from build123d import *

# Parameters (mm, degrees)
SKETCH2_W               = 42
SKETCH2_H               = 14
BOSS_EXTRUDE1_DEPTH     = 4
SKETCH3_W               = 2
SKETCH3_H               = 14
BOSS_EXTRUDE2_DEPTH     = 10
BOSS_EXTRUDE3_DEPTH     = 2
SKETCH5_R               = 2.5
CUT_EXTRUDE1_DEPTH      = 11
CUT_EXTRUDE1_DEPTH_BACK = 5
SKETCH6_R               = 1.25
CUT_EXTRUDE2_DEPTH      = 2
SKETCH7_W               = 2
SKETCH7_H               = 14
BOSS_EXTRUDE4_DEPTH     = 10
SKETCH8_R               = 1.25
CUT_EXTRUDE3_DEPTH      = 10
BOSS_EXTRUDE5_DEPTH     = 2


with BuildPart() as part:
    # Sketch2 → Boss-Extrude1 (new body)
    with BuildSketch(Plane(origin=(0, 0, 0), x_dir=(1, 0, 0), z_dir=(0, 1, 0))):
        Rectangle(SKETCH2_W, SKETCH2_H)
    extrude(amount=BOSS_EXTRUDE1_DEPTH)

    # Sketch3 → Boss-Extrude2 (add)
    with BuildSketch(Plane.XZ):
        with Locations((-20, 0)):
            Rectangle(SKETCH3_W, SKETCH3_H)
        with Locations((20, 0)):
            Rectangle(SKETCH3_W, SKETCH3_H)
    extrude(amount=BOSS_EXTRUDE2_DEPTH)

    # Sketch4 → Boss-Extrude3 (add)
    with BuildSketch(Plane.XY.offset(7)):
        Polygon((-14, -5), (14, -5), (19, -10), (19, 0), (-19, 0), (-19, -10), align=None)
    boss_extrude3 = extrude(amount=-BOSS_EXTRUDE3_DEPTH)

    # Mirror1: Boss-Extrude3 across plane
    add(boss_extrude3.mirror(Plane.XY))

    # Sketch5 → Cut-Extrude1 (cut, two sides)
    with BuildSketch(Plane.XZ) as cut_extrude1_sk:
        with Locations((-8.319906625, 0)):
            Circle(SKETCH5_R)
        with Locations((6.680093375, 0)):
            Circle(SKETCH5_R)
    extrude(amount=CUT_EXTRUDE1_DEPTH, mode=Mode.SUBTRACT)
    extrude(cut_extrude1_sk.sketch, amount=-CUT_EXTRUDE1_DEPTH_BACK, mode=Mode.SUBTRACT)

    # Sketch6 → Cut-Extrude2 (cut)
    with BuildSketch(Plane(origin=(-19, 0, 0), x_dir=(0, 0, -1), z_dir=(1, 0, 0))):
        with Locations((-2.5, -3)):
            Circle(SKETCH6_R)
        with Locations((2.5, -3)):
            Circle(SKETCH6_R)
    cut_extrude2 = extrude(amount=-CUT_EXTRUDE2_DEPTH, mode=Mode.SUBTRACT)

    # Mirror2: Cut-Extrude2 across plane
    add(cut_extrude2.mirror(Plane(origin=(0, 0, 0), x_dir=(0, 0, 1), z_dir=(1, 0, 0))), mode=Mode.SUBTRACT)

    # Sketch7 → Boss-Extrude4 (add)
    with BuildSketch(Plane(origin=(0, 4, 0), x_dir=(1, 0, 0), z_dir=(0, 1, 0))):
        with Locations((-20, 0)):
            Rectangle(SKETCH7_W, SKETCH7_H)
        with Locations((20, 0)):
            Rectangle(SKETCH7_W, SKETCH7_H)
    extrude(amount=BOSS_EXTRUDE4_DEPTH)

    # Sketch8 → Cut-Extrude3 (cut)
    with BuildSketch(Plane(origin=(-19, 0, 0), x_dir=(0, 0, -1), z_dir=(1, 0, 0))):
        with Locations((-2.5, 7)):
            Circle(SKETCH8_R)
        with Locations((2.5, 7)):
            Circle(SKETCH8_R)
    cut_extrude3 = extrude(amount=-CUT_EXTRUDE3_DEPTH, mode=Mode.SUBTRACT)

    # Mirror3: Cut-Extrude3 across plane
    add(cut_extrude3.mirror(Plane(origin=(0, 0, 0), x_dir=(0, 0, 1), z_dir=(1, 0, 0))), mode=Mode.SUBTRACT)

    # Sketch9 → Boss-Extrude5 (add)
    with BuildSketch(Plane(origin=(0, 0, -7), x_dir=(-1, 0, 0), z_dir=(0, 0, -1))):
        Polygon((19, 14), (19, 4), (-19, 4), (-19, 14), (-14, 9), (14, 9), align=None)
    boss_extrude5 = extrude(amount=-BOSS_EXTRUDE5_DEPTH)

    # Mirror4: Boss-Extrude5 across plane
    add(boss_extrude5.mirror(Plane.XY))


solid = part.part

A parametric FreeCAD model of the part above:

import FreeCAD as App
import Part
import Sketcher

doc = App.newDocument("Part")
body = doc.addObject("PartDesign::Body", "Body")

sketch1 = doc.addObject("Sketcher::SketchObject", "Sketch")
body.addObject(sketch1)
sketch1.AttachmentSupport = (doc.XZ_Plane, [""])
sketch1.MapMode = "FlatFace"
sketch1.addGeometry(Part.LineSegment(App.Vector(-21, -7, 0), App.Vector(-21, 7, 0)), False)
sketch1.addGeometry(Part.LineSegment(App.Vector(-21, 7, 0), App.Vector(21, 7, 0)), False)
sketch1.addGeometry(Part.LineSegment(App.Vector(21, 7, 0), App.Vector(21, -7, 0)), False)
sketch1.addGeometry(Part.LineSegment(App.Vector(21, -7, 0), App.Vector(-21, -7, 0)), False)
sketch1.addConstraint(Sketcher.Constraint("Coincident", 0, 2, 1, 1))
sketch1.addConstraint(Sketcher.Constraint("Coincident", 1, 2, 2, 1))
sketch1.addConstraint(Sketcher.Constraint("Coincident", 2, 2, 3, 1))
sketch1.addConstraint(Sketcher.Constraint("Coincident", 3, 2, 0, 1))
sketch1.addConstraint(Sketcher.Constraint("Vertical", 0))
sketch1.addConstraint(Sketcher.Constraint("Horizontal", 1))
sketch1.addConstraint(Sketcher.Constraint("Vertical", 2))
sketch1.addConstraint(Sketcher.Constraint("Horizontal", 3))
sketch1.addConstraint(Sketcher.Constraint("Symmetric", 0, 2, 2, 2, -1, 1))
sketch1.addConstraint(Sketcher.Constraint("DistanceX", 1, 1, 1, 2, 42.0))
sketch1.addConstraint(Sketcher.Constraint("DistanceY", 0, 1, 0, 2, 14.0))
pad1 = doc.addObject("PartDesign::Pad", "Pad")
body.addObject(pad1)
pad1.Profile = sketch1
pad1.Length = 4
pad1.Reversed = True

sketch2 = doc.addObject("Sketcher::SketchObject", "Sketch001")
body.addObject(sketch2)
sketch2.AttachmentSupport = (doc.XZ_Plane, [""])
sketch2.MapMode = "FlatFace"
sketch2.addGeometry(Part.LineSegment(App.Vector(-21, 7, 0), App.Vector(-21, -7, 0)), False)
sketch2.addGeometry(Part.LineSegment(App.Vector(-21, -7, 0), App.Vector(-19, -7, 0)), False)
sketch2.addGeometry(Part.LineSegment(App.Vector(-19, -7, 0), App.Vector(-19, 7, 0)), False)
sketch2.addGeometry(Part.LineSegment(App.Vector(-19, 7, 0), App.Vector(-21, 7, 0)), False)
sketch2.addGeometry(Part.LineSegment(App.Vector(19, 7, 0), App.Vector(19, -7, 0)), False)
sketch2.addGeometry(Part.LineSegment(App.Vector(19, -7, 0), App.Vector(21, -7, 0)), False)
sketch2.addGeometry(Part.LineSegment(App.Vector(21, -7, 0), App.Vector(21, 7, 0)), False)
sketch2.addGeometry(Part.LineSegment(App.Vector(21, 7, 0), App.Vector(19, 7, 0)), False)
sketch2.addConstraint(Sketcher.Constraint("Coincident", 0, 2, 1, 1))
sketch2.addConstraint(Sketcher.Constraint("Coincident", 1, 2, 2, 1))
sketch2.addConstraint(Sketcher.Constraint("Coincident", 2, 2, 3, 1))
sketch2.addConstraint(Sketcher.Constraint("Coincident", 3, 2, 0, 1))
sketch2.addConstraint(Sketcher.Constraint("Coincident", 4, 2, 5, 1))
sketch2.addConstraint(Sketcher.Constraint("Coincident", 5, 2, 6, 1))
sketch2.addConstraint(Sketcher.Constraint("Coincident", 6, 2, 7, 1))
sketch2.addConstraint(Sketcher.Constraint("Coincident", 7, 2, 4, 1))
sketch2.addConstraint(Sketcher.Constraint("Vertical", 0))
sketch2.addConstraint(Sketcher.Constraint("Horizontal", 1))
sketch2.addConstraint(Sketcher.Constraint("Vertical", 2))
sketch2.addConstraint(Sketcher.Constraint("Horizontal", 3))
sketch2.addConstraint(Sketcher.Constraint("Vertical", 4))
sketch2.addConstraint(Sketcher.Constraint("Horizontal", 5))
sketch2.addConstraint(Sketcher.Constraint("Vertical", 6))
sketch2.addConstraint(Sketcher.Constraint("Horizontal", 7))
sketch2.addConstraint(Sketcher.Constraint("Symmetric", 2, 2, 4, 2, -1, 1))
sketch2.addConstraint(Sketcher.Constraint("Symmetric", 0, 2, 6, 2, -1, 1))
sketch2.addConstraint(Sketcher.Constraint("Horizontal", 1, 2, 4, 2))
sketch2.addConstraint(Sketcher.Constraint("DistanceX", 1, 1, 1, 2, 2.0))
sketch2.addConstraint(Sketcher.Constraint("DistanceY", 0, 2, 0, 1, 14.0))
sketch2.addConstraint(Sketcher.Constraint("DistanceX", 0, 2, -1, 1, 21.0))
pad2 = doc.addObject("PartDesign::Pad", "Pad001")
body.addObject(pad2)
pad2.Profile = sketch2
pad2.Length = 10

sketch3 = doc.addObject("Sketcher::SketchObject", "Sketch002")
body.addObject(sketch3)
sketch3.AttachmentSupport = (doc.XY_Plane, [""])
sketch3.MapMode = "FlatFace"
sketch3.AttachmentOffset = App.Placement(App.Vector(0, 0, 7), App.Rotation())
sketch3.addGeometry(Part.LineSegment(App.Vector(-14, -5, 0), App.Vector(14, -5, 0)), False)
sketch3.addGeometry(Part.LineSegment(App.Vector(14, -5, 0), App.Vector(19, -10, 0)), False)
sketch3.addGeometry(Part.LineSegment(App.Vector(19, -10, 0), App.Vector(19, 0, 0)), False)
sketch3.addGeometry(Part.LineSegment(App.Vector(19, 0, 0), App.Vector(-19, 0, 0)), False)
sketch3.addGeometry(Part.LineSegment(App.Vector(-19, 0, 0), App.Vector(-19, -10, 0)), False)
sketch3.addGeometry(Part.LineSegment(App.Vector(-19, -10, 0), App.Vector(-14, -5, 0)), False)
sketch3.addConstraint(Sketcher.Constraint("Coincident", 0, 2, 1, 1))
sketch3.addConstraint(Sketcher.Constraint("Coincident", 1, 2, 2, 1))
sketch3.addConstraint(Sketcher.Constraint("Coincident", 2, 2, 3, 1))
sketch3.addConstraint(Sketcher.Constraint("Coincident", 3, 2, 4, 1))
sketch3.addConstraint(Sketcher.Constraint("Coincident", 4, 2, 5, 1))
sketch3.addConstraint(Sketcher.Constraint("Coincident", 5, 2, 0, 1))
sketch3.addConstraint(Sketcher.Constraint("Horizontal", 0))
sketch3.addConstraint(Sketcher.Constraint("Vertical", 2))
sketch3.addConstraint(Sketcher.Constraint("Horizontal", 3))
sketch3.addConstraint(Sketcher.Constraint("Vertical", 4))
sketch3.addConstraint(Sketcher.Constraint("Symmetric", 2, 2, 3, 2, -1, 1))
sketch3.addConstraint(Sketcher.Constraint("Perpendicular", 1, 5))
sketch3.addConstraint(Sketcher.Constraint("Horizontal", 1, 2, 4, 2))
sketch3.addConstraint(Sketcher.Constraint("Equal", 1, 5))
sketch3.addConstraint(Sketcher.Constraint("DistanceX", 0, 1, 0, 2, 28.0))
sketch3.addConstraint(Sketcher.Constraint("DistanceX", 3, 2, 3, 1, 38.0))
sketch3.addConstraint(Sketcher.Constraint("DistanceY", 2, 1, 2, 2, 10.0))
pad3 = doc.addObject("PartDesign::Pad", "Pad002")
body.addObject(pad3)
pad3.Profile = sketch3
pad3.Length = 2
pad3.Reversed = True
doc.recompute()

mirrored = doc.addObject("PartDesign::Mirrored", "Mirrored")
body.addObject(mirrored)
mirrored.Originals = [pad3]
mirrored.MirrorPlane = (doc.XY_Plane, [""])
body.Tip = mirrored

sketch4 = doc.addObject("Sketcher::SketchObject", "Sketch003")
body.addObject(sketch4)
sketch4.AttachmentSupport = (doc.XZ_Plane, [""])
sketch4.MapMode = "FlatFace"
sketch4.addGeometry(Part.Circle(App.Vector(-8.319907, 0, 0), App.Vector(0, 0, 1), 2.5), False)
sketch4.addGeometry(Part.Circle(App.Vector(6.680093, 0, 0), App.Vector(0, 0, 1), 2.5), False)
sketch4.addConstraint(Sketcher.Constraint("Equal", 0, 1))
sketch4.addConstraint(Sketcher.Constraint("PointOnObject", 0, 3, -1))
sketch4.addConstraint(Sketcher.Constraint("PointOnObject", 1, 3, -1))
sketch4.addConstraint(Sketcher.Constraint("Diameter", 0, 5.0))
sketch4.addConstraint(Sketcher.Constraint("DistanceX", 0, 3, 1, 3, 15.0))
sketch4.addConstraint(Sketcher.Constraint("DistanceX", 0, 3, -1, 1, 8.319907))
pocket1 = doc.addObject("PartDesign::Pocket", "Pocket")
body.addObject(pocket1)
pocket1.Profile = sketch4
pocket1.Type = "ThroughAll"
pocket1.Midplane = True

sketch5 = doc.addObject("Sketcher::SketchObject", "Sketch004")
body.addObject(sketch5)
sketch5.AttachmentSupport = (doc.YZ_Plane, [""])
sketch5.MapMode = "FlatFace"
sketch5.AttachmentOffset = App.Placement(App.Vector(0, 0, -19), App.Rotation())
sketch5.addGeometry(Part.Circle(App.Vector(-3, 2.5, 0), App.Vector(0, 0, 1), 1.25), False)
sketch5.addGeometry(Part.Circle(App.Vector(-3, -2.5, 0), App.Vector(0, 0, 1), 1.25), False)
sketch5.addConstraint(Sketcher.Constraint("Equal", 0, 1))
sketch5.addConstraint(Sketcher.Constraint("Symmetric", 0, 3, 1, 3, -1))
sketch5.addConstraint(Sketcher.Constraint("Diameter", 0, 2.5))
sketch5.addConstraint(Sketcher.Constraint("DistanceX", 0, 3, -1, 1, 3.0))
sketch5.addConstraint(Sketcher.Constraint("DistanceY", 1, 3, 0, 3, 5.0))
pocket2 = doc.addObject("PartDesign::Pocket", "Pocket001")
body.addObject(pocket2)
pocket2.Profile = sketch5
pocket2.Length = 2
doc.recompute()

mirrored2 = doc.addObject("PartDesign::Mirrored", "Mirrored001")
body.addObject(mirrored2)
mirrored2.Originals = [pocket2]
mirrored2.MirrorPlane = (doc.YZ_Plane, [""])
body.Tip = mirrored2

sketch6 = doc.addObject("Sketcher::SketchObject", "Sketch005")
body.addObject(sketch6)
sketch6.AttachmentSupport = (doc.XZ_Plane, [""])
sketch6.MapMode = "FlatFace"
sketch6.AttachmentOffset = App.Placement(App.Vector(0, 0, -4), App.Rotation())
sketch6.addGeometry(Part.LineSegment(App.Vector(-21, -7, 0), App.Vector(-21, 7, 0)), False)
sketch6.addGeometry(Part.LineSegment(App.Vector(-21, 7, 0), App.Vector(-19, 7, 0)), False)
sketch6.addGeometry(Part.LineSegment(App.Vector(-19, 7, 0), App.Vector(-19, -7, 0)), False)
sketch6.addGeometry(Part.LineSegment(App.Vector(-19, -7, 0), App.Vector(-21, -7, 0)), False)
sketch6.addGeometry(Part.LineSegment(App.Vector(19, -7, 0), App.Vector(19, 7, 0)), False)
sketch6.addGeometry(Part.LineSegment(App.Vector(19, 7, 0), App.Vector(21, 7, 0)), False)
sketch6.addGeometry(Part.LineSegment(App.Vector(21, 7, 0), App.Vector(21, -7, 0)), False)
sketch6.addGeometry(Part.LineSegment(App.Vector(21, -7, 0), App.Vector(19, -7, 0)), False)
sketch6.addConstraint(Sketcher.Constraint("Coincident", 0, 2, 1, 1))
sketch6.addConstraint(Sketcher.Constraint("Coincident", 1, 2, 2, 1))
sketch6.addConstraint(Sketcher.Constraint("Coincident", 2, 2, 3, 1))
sketch6.addConstraint(Sketcher.Constraint("Coincident", 3, 2, 0, 1))
sketch6.addConstraint(Sketcher.Constraint("Coincident", 4, 2, 5, 1))
sketch6.addConstraint(Sketcher.Constraint("Coincident", 5, 2, 6, 1))
sketch6.addConstraint(Sketcher.Constraint("Coincident", 6, 2, 7, 1))
sketch6.addConstraint(Sketcher.Constraint("Coincident", 7, 2, 4, 1))
sketch6.addConstraint(Sketcher.Constraint("Vertical", 0))
sketch6.addConstraint(Sketcher.Constraint("Horizontal", 1))
sketch6.addConstraint(Sketcher.Constraint("Vertical", 2))
sketch6.addConstraint(Sketcher.Constraint("Horizontal", 3))
sketch6.addConstraint(Sketcher.Constraint("Vertical", 4))
sketch6.addConstraint(Sketcher.Constraint("Horizontal", 5))
sketch6.addConstraint(Sketcher.Constraint("Vertical", 6))
sketch6.addConstraint(Sketcher.Constraint("Horizontal", 7))
sketch6.addConstraint(Sketcher.Constraint("Symmetric", 2, 2, 4, 2, -1, 1))
sketch6.addConstraint(Sketcher.Constraint("Symmetric", 0, 2, 6, 2, -1, 1))
sketch6.addConstraint(Sketcher.Constraint("Horizontal", 1, 2, 4, 2))
sketch6.addConstraint(Sketcher.Constraint("DistanceX", 1, 1, 1, 2, 2.0))
sketch6.addConstraint(Sketcher.Constraint("DistanceY", 0, 1, 0, 2, 14.0))
sketch6.addConstraint(Sketcher.Constraint("DistanceX", 0, 2, -1, 1, 21.0))
pad4 = doc.addObject("PartDesign::Pad", "Pad003")
body.addObject(pad4)
pad4.Profile = sketch6
pad4.Length = 10
pad4.Reversed = True

sketch7 = doc.addObject("Sketcher::SketchObject", "Sketch006")
body.addObject(sketch7)
sketch7.AttachmentSupport = (doc.YZ_Plane, [""])
sketch7.MapMode = "FlatFace"
sketch7.AttachmentOffset = App.Placement(App.Vector(0, 0, -19), App.Rotation())
sketch7.addGeometry(Part.Circle(App.Vector(7, 2.5, 0), App.Vector(0, 0, 1), 1.25), False)
sketch7.addGeometry(Part.Circle(App.Vector(7, -2.5, 0), App.Vector(0, 0, 1), 1.25), False)
sketch7.addConstraint(Sketcher.Constraint("Equal", 0, 1))
sketch7.addConstraint(Sketcher.Constraint("Symmetric", 0, 3, 1, 3, -1))
sketch7.addConstraint(Sketcher.Constraint("Diameter", 0, 2.5))
sketch7.addConstraint(Sketcher.Constraint("DistanceX", -1, 1, 0, 3, 7.0))
sketch7.addConstraint(Sketcher.Constraint("DistanceY", 1, 3, 0, 3, 5.0))
pocket3 = doc.addObject("PartDesign::Pocket", "Pocket002")
body.addObject(pocket3)
pocket3.Profile = sketch7
pocket3.Length = 10
doc.recompute()

mirrored3 = doc.addObject("PartDesign::Mirrored", "Mirrored002")
body.addObject(mirrored3)
mirrored3.Originals = [pocket3]
mirrored3.MirrorPlane = (doc.YZ_Plane, [""])
body.Tip = mirrored3

sketch8 = doc.addObject("Sketcher::SketchObject", "Sketch007")
body.addObject(sketch8)
sketch8.AttachmentSupport = (doc.XY_Plane, [""])
sketch8.MapMode = "FlatFace"
sketch8.AttachmentOffset = App.Placement(App.Vector(0, 0, -7), App.Rotation())
sketch8.addGeometry(Part.LineSegment(App.Vector(-19, 4, 0), App.Vector(-19, 14, 0)), False)
sketch8.addGeometry(Part.LineSegment(App.Vector(-19, 14, 0), App.Vector(-14, 9, 0)), False)
sketch8.addGeometry(Part.LineSegment(App.Vector(-14, 9, 0), App.Vector(14, 9, 0)), False)
sketch8.addGeometry(Part.LineSegment(App.Vector(14, 9, 0), App.Vector(19, 14, 0)), False)
sketch8.addGeometry(Part.LineSegment(App.Vector(19, 14, 0), App.Vector(19, 4, 0)), False)
sketch8.addGeometry(Part.LineSegment(App.Vector(19, 4, 0), App.Vector(-19, 4, 0)), False)
sketch8.addConstraint(Sketcher.Constraint("Coincident", 0, 2, 1, 1))
sketch8.addConstraint(Sketcher.Constraint("Coincident", 1, 2, 2, 1))
sketch8.addConstraint(Sketcher.Constraint("Coincident", 2, 2, 3, 1))
sketch8.addConstraint(Sketcher.Constraint("Coincident", 3, 2, 4, 1))
sketch8.addConstraint(Sketcher.Constraint("Coincident", 4, 2, 5, 1))
sketch8.addConstraint(Sketcher.Constraint("Coincident", 5, 2, 0, 1))
sketch8.addConstraint(Sketcher.Constraint("Vertical", 0))
sketch8.addConstraint(Sketcher.Constraint("Horizontal", 2))
sketch8.addConstraint(Sketcher.Constraint("Vertical", 4))
sketch8.addConstraint(Sketcher.Constraint("Horizontal", 5))
sketch8.addConstraint(Sketcher.Constraint("Symmetric", 0, 2, 3, 2, -2))
sketch8.addConstraint(Sketcher.Constraint("Perpendicular", 1, 3))
sketch8.addConstraint(Sketcher.Constraint("Equal", 1, 3))
sketch8.addConstraint(Sketcher.Constraint("DistanceX", 2, 1, 2, 2, 28.0))
sketch8.addConstraint(Sketcher.Constraint("DistanceX", 5, 2, 5, 1, 38.0))
sketch8.addConstraint(Sketcher.Constraint("DistanceY", 0, 1, 0, 2, 10.0))
sketch8.addConstraint(Sketcher.Constraint("DistanceY", -1, 1, 0, 2, 14.0))
pad5 = doc.addObject("PartDesign::Pad", "Pad004")
body.addObject(pad5)
pad5.Profile = sketch8
pad5.Length = 2
doc.recompute()

mirrored4 = doc.addObject("PartDesign::Mirrored", "Mirrored003")
body.addObject(mirrored4)
mirrored4.Originals = [pad5]
mirrored4.MirrorPlane = (doc.XY_Plane, [""])
body.Tip = mirrored4

doc.recompute()
